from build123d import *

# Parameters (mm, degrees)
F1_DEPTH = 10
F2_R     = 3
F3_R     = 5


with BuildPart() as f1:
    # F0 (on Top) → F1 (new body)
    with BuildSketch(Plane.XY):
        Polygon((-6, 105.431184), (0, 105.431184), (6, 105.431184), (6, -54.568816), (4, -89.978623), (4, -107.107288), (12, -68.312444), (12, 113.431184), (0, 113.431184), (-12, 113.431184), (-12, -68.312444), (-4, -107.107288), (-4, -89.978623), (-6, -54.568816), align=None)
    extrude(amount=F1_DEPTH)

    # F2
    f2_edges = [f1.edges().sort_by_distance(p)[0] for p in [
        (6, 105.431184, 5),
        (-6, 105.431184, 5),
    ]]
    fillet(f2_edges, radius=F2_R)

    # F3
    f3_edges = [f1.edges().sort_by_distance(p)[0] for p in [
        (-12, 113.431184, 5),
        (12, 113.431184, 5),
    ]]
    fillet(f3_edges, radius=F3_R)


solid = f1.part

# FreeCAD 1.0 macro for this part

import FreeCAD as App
import Part
import Sketcher
from FreeCAD import Vector


def edges_at(feature, points):
    """Names of the edges that pass closest to the given points."""
    edges = feature.Shape.Edges
    near = lambda p: min(range(len(edges)), key=lambda i: edges[i].distToShape(Part.Vertex(*p))[0])
    return sorted({f"Edge{near(p) + 1}" for p in points})


def add_polygon(sketch, points):
    """Adds a closed chain of lines whose ends are joined by coincident constraints."""
    first, n = sketch.GeometryCount, len(points)
    for a, b in zip(points, points[1:] + points[:1]):
        sketch.addGeometry(Part.LineSegment(App.Vector(*a, 0), App.Vector(*b, 0)), False)
    for i in range(n):
        sketch.addConstraint(Sketcher.Constraint("Coincident", first + i, 2, first + (i + 1) % n, 1))

doc = App.newDocument("Part")
body = doc.addObject("PartDesign::Body", "Body")

sketch1 = body.newObject("Sketcher::SketchObject", "Sketch")
sketch1.AttachmentSupport = (doc.getObject("XY_Plane"), [""])
sketch1.MapMode = "FlatFace"
add_polygon(sketch1, [(-6, 105), (6, 105), (6, -55), (4, -90), (4, -107), (12, -68), (12, 113), (-12, 113), (-12, -68), (-4, -107), (-4, -90), (-6, -55)])
sketch1.addConstraint([
    Sketcher.Constraint("Horizontal", 0),
    Sketcher.Constraint("Vertical", 1),
    Sketcher.Constraint("Vertical", 3),
    Sketcher.Constraint("Vertical", 5),
    Sketcher.Constraint("Horizontal", 6),
    Sketcher.Constraint("Vertical", 7),
    Sketcher.Constraint("Vertical", 9),
    Sketcher.Constraint("Vertical", 11),
    Sketcher.Constraint("Symmetric", 4, 2, 7, 2, -2),
    Sketcher.Constraint("Symmetric", 3, 2, 8, 2, -2),
    Sketcher.Constraint("Symmetric", 1, 2, 10, 2, -2),
    Sketcher.Constraint("Horizontal", 2, 2, 9, 2),
    Sketcher.Constraint("DistanceX", 0, 1, 0, 2, 12.0),
    Sketcher.Constraint("DistanceX", 6, 2, 6, 1, 24.0),
    Sketcher.Constraint("DistanceY", 1, 2, 1, 1, 160.0),
    Sketcher.Constraint("DistanceX", -1, 1, 2, 2, 4.0),
    Sketcher.Constraint("DistanceY", 0, 2, 5, 2, 8.0),
    Sketcher.Constraint("DistanceY", 5, 1, 5, 2, 181.743628),
    Sketcher.Constraint("Distance", 4, 39.611109),
    Sketcher.Constraint("DistanceY", 3, 2, 3, 1, 17.128665),
    Sketcher.Constraint("DistanceY", -1, 1, 0, 2, 105.431184),
])
pad1 = body.newObject("PartDesign::Pad", "Pad")
pad1.Profile = sketch1
pad1.Length = 10
doc.recompute()

fillet = body.newObject("PartDesign::Fillet", "Fillet")
fillet.Base = (pad1, edges_at(pad1, [(6, 105.431, 5), (-6, 105.431, 5)]))
fillet.Radius = 3
doc.recompute()

fillet2 = body.newObject("PartDesign::Fillet", "Fillet001")
fillet2.Base = (fillet, edges_at(fillet, [(-12, 113.431, 5), (12, 113.431, 5)]))
fillet2.Radius = 5

doc.recompute()
